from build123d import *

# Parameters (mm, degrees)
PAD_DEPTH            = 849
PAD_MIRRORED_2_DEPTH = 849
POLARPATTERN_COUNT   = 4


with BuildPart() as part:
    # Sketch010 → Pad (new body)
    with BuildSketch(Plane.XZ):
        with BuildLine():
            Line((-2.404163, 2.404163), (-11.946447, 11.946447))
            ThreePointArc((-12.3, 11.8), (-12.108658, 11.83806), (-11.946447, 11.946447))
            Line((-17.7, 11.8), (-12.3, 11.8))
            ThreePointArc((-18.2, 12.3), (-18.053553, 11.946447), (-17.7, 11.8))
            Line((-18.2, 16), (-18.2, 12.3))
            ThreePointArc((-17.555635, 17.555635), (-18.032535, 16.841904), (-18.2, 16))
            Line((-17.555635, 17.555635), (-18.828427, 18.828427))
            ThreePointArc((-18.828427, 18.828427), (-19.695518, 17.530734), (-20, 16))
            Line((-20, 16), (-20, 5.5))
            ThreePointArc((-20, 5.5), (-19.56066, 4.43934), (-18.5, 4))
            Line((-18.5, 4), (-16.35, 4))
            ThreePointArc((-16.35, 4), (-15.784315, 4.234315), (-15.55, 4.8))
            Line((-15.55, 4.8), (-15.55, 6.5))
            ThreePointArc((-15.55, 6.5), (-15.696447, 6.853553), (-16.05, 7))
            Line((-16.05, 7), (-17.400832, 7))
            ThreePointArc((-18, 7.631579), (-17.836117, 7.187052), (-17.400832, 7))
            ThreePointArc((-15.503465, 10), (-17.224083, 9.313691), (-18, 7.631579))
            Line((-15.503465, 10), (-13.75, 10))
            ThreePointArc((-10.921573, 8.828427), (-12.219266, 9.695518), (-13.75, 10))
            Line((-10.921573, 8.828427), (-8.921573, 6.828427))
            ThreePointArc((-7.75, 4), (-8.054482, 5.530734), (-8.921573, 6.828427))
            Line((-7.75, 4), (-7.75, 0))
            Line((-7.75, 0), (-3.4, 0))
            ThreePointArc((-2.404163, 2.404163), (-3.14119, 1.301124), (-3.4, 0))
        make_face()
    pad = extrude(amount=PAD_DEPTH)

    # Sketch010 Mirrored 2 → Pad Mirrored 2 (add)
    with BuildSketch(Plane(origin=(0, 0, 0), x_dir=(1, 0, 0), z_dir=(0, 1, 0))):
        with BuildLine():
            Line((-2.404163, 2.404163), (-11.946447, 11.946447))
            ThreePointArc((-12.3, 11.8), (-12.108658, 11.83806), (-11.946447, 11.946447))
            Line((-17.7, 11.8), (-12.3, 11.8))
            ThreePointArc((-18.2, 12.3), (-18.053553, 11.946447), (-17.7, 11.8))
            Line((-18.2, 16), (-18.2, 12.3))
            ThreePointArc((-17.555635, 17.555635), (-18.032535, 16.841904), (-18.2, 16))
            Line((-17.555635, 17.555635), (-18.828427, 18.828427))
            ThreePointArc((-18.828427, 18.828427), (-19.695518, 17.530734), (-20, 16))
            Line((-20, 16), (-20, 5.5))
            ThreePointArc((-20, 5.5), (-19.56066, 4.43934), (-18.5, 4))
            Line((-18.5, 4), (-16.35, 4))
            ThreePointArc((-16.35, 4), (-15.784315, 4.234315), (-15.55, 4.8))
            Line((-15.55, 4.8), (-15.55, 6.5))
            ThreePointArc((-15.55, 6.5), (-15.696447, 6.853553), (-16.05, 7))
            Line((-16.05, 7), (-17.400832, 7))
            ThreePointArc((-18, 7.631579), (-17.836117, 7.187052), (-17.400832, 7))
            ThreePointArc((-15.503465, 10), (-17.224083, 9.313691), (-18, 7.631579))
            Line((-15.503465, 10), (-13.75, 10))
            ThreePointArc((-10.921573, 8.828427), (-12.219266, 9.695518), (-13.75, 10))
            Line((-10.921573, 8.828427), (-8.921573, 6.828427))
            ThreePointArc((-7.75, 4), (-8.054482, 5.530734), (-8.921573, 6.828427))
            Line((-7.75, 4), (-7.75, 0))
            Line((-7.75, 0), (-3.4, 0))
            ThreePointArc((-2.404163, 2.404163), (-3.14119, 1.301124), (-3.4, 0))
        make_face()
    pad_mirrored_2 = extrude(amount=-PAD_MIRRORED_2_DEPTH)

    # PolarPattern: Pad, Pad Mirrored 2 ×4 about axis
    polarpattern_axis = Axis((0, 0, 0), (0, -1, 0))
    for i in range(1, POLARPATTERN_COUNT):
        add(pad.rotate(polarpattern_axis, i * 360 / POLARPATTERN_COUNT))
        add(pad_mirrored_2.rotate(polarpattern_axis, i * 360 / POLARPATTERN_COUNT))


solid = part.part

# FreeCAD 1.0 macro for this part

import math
import FreeCAD as App
import Part
import Sketcher
from FreeCAD import Vector
Q = App.Units.Quantity

doc = App.newDocument("Part")
body = doc.addObject("PartDesign::Body", "Body")

sketch1 = doc.addObject("Sketcher::SketchObject", "Sketch")
body.addObject(sketch1)
sketch1.AttachmentSupport = (doc.XZ_Plane, [""])
sketch1.MapMode = "FlatFace"
sketch1.addGeometry(Part.LineSegment(Vector(-2.4, 2.4, 0), Vector(-11.95, 11.95, 0)), False)
sketch1.addGeometry(Part.ArcOfCircle(Part.Circle(Vector(-12.3, 12.3, 0), Vector(0, 0, 1), 0.5), math.radians(-90), math.radians(-45)), False)
sketch1.addGeometry(Part.LineSegment(Vector(-12.3, 11.8, 0), Vector(-17.7, 11.8, 0)), False)
sketch1.addGeometry(Part.ArcOfCircle(Part.Circle(Vector(-17.7, 12.3, 0), Vector(0, 0, 1), 0.5), math.radians(-180), math.radians(-90)), False)
sketch1.addGeometry(Part.LineSegment(Vector(-18.2, 12.3, 0), Vector(-18.2, 16, 0)), False)
sketch1.addGeometry(Part.ArcOfCircle(Part.Circle(Vector(-16, 16, 0), Vector(0, 0, 1), 2.2), math.radians(135), math.radians(180)), False)
sketch1.addGeometry(Part.LineSegment(Vector(-17.56, 17.56, 0), Vector(-18.83, 18.83, 0)), False)
sketch1.addGeometry(Part.ArcOfCircle(Part.Circle(Vector(-16, 16, 0), Vector(0, 0, 1), 4), math.radians(135), math.radians(180)), False)
sketch1.addGeometry(Part.LineSegment(Vector(-20, 16, 0), Vector(-20, 5.5, 0)), False)
sketch1.addGeometry(Part.ArcOfCircle(Part.Circle(Vector(-18.5, 5.5, 0), Vector(0, 0, 1), 1.5), math.radians(-180), math.radians(-90)), False)
sketch1.addGeometry(Part.LineSegment(Vector(-18.5, 4, 0), Vector(-16.35, 4, 0)), False)
sketch1.addGeometry(Part.ArcOfCircle(Part.Circle(Vector(-16.35, 4.8, 0), Vector(0, 0, 1), 0.8), math.radians(-90), math.radians(0)), False)
sketch1.addGeometry(Part.LineSegment(Vector(-15.55, 4.8, 0), Vector(-15.55, 6.5, 0)), False)
sketch1.addGeometry(Part.ArcOfCircle(Part.Circle(Vector(-16.05, 6.5, 0), Vector(0, 0, 1), 0.5), math.radians(0), math.radians(90)), False)
sketch1.addGeometry(Part.LineSegment(Vector(-16.05, 7, 0), Vector(-17.4, 7, 0)), False)
sketch1.addGeometry(Part.ArcOfCircle(Part.Circle(Vector(-17.4, 7.6, 0), Vector(0, 0, 1), 0.6), math.radians(177), math.radians(270)), False)
sketch1.addGeometry(Part.ArcOfCircle(Part.Circle(Vector(-15.5, 7.5, 0), Vector(0, 0, 1), 2.5), math.radians(90), math.radians(177)), False)
sketch1.addGeometry(Part.LineSegment(Vector(-15.5, 10, 0), Vector(-13.75, 10, 0)), False)
sketch1.addGeometry(Part.ArcOfCircle(Part.Circle(Vector(-13.75, 6, 0), Vector(0, 0, 1), 4), math.radians(45), math.radians(90)), False)
sketch1.addGeometry(Part.LineSegment(Vector(-10.92, 8.83, 0), Vector(-8.92, 6.83, 0)), False)
sketch1.addGeometry(Part.ArcOfCircle(Part.Circle(Vector(-11.75, 4, 0), Vector(0, 0, 1), 4), math.radians(0), math.radians(45)), False)
sketch1.addGeometry(Part.LineSegment(Vector(-7.75, 4, 0), Vector(-7.75, 0, 0)), False)
sketch1.addGeometry(Part.LineSegment(Vector(-7.75, 0, 0), Vector(-3.4, 0, 0)), False)
sketch1.addGeometry(Part.ArcOfCircle(Part.Circle(Vector(0, 0, 0), Vector(0, 0, 1), 3.4), math.radians(135), math.radians(180)), False)
sketch1.addConstraint(Sketcher.Constraint("Coincident", 0, 2, 1, 2))
sketch1.addConstraint(Sketcher.Constraint("Coincident", 1, 1, 2, 1))
sketch1.addConstraint(Sketcher.Constraint("Coincident", 2, 2, 3, 2))
sketch1.addConstraint(Sketcher.Constraint("Coincident", 3, 1, 4, 1))
sketch1.addConstraint(Sketcher.Constraint("Tangent", 4, 2, 5, 2))
sketch1.addConstraint(Sketcher.Constraint("Coincident", 5, 1, 6, 1))
sketch1.addConstraint(Sketcher.Constraint("Coincident", 6, 2, 7, 1))
sketch1.addConstraint(Sketcher.Constraint("Tangent", 7, 2, 8, 1))
sketch1.addConstraint(Sketcher.Constraint("Tangent", 8, 2, 9, 1))
sketch1.addConstraint(Sketcher.Constraint("Tangent", 9, 2, 10, 1))
sketch1.addConstraint(Sketcher.Constraint("Tangent", 10, 2, 11, 1))
sketch1.addConstraint(Sketcher.Constraint("Tangent", 11, 2, 12, 1))
sketch1.addConstraint(Sketcher.Constraint("Coincident", 12, 2, 13, 1))
sketch1.addConstraint(Sketcher.Constraint("Coincident", 13, 2, 14, 1))
sketch1.addConstraint(Sketcher.Constraint("Coincident", 14, 2, 15, 2))
sketch1.addConstraint(Sketcher.Constraint("Tangent", 15, 1, 16, 2))
sketch1.addConstraint(Sketcher.Constraint("Tangent", 16, 1, 17, 1))
sketch1.addConstraint(Sketcher.Constraint("Tangent", 17, 2, 18, 2))
sketch1.addConstraint(Sketcher.Constraint("Tangent", 18, 1, 19, 1))
sketch1.addConstraint(Sketcher.Constraint("Tangent", 19, 2, 20, 2))
sketch1.addConstraint(Sketcher.Constraint("Tangent", 20, 1, 21, 1))
sketch1.addConstraint(Sketcher.Constraint("Coincident", 21, 2, 22, 1))
sketch1.addConstraint(Sketcher.Constraint("Coincident", 22, 2, 23, 2))
sketch1.addConstraint(Sketcher.Constraint("Coincident", 23, 1, 0, 1))
sketch1.addConstraint(Sketcher.Constraint("Horizontal", 2))
sketch1.addConstraint(Sketcher.Constraint("Vertical", 4))
sketch1.addConstraint(Sketcher.Constraint("Vertical", 8))
sketch1.addConstraint(Sketcher.Constraint("Horizontal", 10))
sketch1.addConstraint(Sketcher.Constraint("Vertical", 12))
sketch1.addConstraint(Sketcher.Constraint("Horizontal", 14))
sketch1.addConstraint(Sketcher.Constraint("Horizontal", 17))
sketch1.addConstraint(Sketcher.Constraint("Vertical", 21))
sketch1.addConstraint(Sketcher.Constraint("Horizontal", 22))
sketch1.addConstraint(Sketcher.Constraint("Coincident", 23, 3, -1, 1))
sketch1.addConstraint(Sketcher.Constraint("Coincident", 7, 3, 5, 3))
sketch1.addConstraint(Sketcher.Constraint("Equal", 3, 13))
sketch1.addConstraint(Sketcher.Constraint("Equal", 7, 18))
sketch1.addConstraint(Sketcher.Constraint("Equal", 18, 20))
sketch1.addConstraint(Sketcher.Constraint("PointOnObject", 21, 2, -1))
sketch1.addConstraint(Sketcher.Constraint("Parallel", 0, 6))
sketch1.addConstraint(Sketcher.Constraint("Parallel", 6, 19))
sketch1.addConstraint(Sketcher.Constraint("Horizontal", 20, 3, 9, 2))
sketch1.addConstraint(Sketcher.Constraint("Horizontal", 13, 3, 12, 2))
sketch1.addConstraint(Sketcher.Constraint("Vertical", 3, 3, 2, 2))
sketch1.addConstraint(Sketcher.Constraint("Vertical", 15, 3, 14, 2))
sketch1.addConstraint(Sketcher.Constraint("Radius", 7, Q("3.999999 mm")))
sketch1.addConstraint(Sketcher.Constraint("Radius", 3, Q("0.500001 mm")))
sketch1.addConstraint(Sketcher.Constraint("Radius", 5, Q("2.199998 mm")))
sketch1.addConstraint(Sketcher.Constraint("Radius", 9, Q("1.500001 mm")))
sketch1.addConstraint(Sketcher.Constraint("Radius", 11, Q("0.800001 mm")))
sketch1.addConstraint(Sketcher.Constraint("Radius", 15, Q("0.600001 mm")))
sketch1.addConstraint(Sketcher.Constraint("Radius", 16, Q("2.499999 mm")))
sketch1.addConstraint(Sketcher.Constraint("DistanceY", 21, 2, 21, 1, Q("4 mm")))
sketch1.addConstraint(Sketcher.Constraint("Angle", 0, Q("135 deg")))
sketch1.addConstraint(Sketcher.Constraint("DistanceX", 2, 2, 2, 1, Q("5.4 mm")))
sketch1.addConstraint(Sketcher.Constraint("DistanceY", 4, 1, 4, 2, Q("3.7 mm")))
sketch1.addConstraint(Sketcher.Constraint("DistanceY", 8, 2, 8, 1, Q("10.5 mm")))
sketch1.addConstraint(Sketcher.Constraint("DistanceY", 12, 1, 12, 2, Q("1.7 mm")))
sketch1.addConstraint(Sketcher.Constraint("DistanceX", 5, 3, -1, 1, Q("16.000002 mm")))
sketch1.addConstraint(Sketcher.Constraint("DistanceY", -1, 1, 18, 3, Q("6.000001 mm")))
sketch1.addConstraint(Sketcher.Constraint("DistanceX", 15, 1, -1, 1, Q("18 mm")))
sketch1.addConstraint(Sketcher.Constraint("DistanceX", 10, 1, 10, 2, Q("2.15 mm")))
sketch1.addConstraint(Sketcher.Constraint("DistanceX", 22, 1, 22, 2, Q("4.35 mm")))
sketch1.addConstraint(Sketcher.Constraint("DistanceY", -1, 1, 3, 3, Q("12.300001 mm")))
sketch1.addConstraint(Sketcher.Constraint("DistanceX", 22, 2, -1, 1, Q("3.4 mm")))
sketch1.addConstraint(Sketcher.Constraint("DistanceX", 3, 3, 1, 3, Q("5.400001 mm")))
sketch1.addConstraint(Sketcher.Constraint("DistanceX", 13, 2, 12, 2, Q("0.5 mm")))
sketch1.addConstraint(Sketcher.Constraint("Radius", 1, Q("0.499992 mm")))
sketch1.addConstraint(Sketcher.Constraint("DistanceX", 1, 3, 0, 2, Q("0.353551 mm")))
sketch1.addConstraint(Sketcher.Constraint("DistanceX", 5, 1, -1, 1, Q("17.555635 mm")))
pad1 = doc.addObject("PartDesign::Pad", "Pad")
body.addObject(pad1)
pad1.Profile = sketch1
pad1.Length = 849

sketch2 = doc.addObject("Sketcher::SketchObject", "Sketch001")
body.addObject(sketch2)
sketch2.AttachmentSupport = (doc.XZ_Plane, [""])
sketch2.MapMode = "FlatFace"
sketch2.addGeometry(Part.LineSegment(Vector(-2.4, -2.4, 0), Vector(-11.95, -11.95, 0)), False)
sketch2.addGeometry(Part.ArcOfCircle(Part.Circle(Vector(-12.3, -12.3, 0), Vector(0, 0, 1), 0.5), math.radians(45), math.radians(90)), False)
sketch2.addGeometry(Part.LineSegment(Vector(-12.3, -11.8, 0), Vector(-17.7, -11.8, 0)), False)
sketch2.addGeometry(Part.ArcOfCircle(Part.Circle(Vector(-17.7, -12.3, 0), Vector(0, 0, 1), 0.5), math.radians(90), math.radians(180)), False)
sketch2.addGeometry(Part.LineSegment(Vector(-18.2, -12.3, 0), Vector(-18.2, -16, 0)), False)
sketch2.addGeometry(Part.ArcOfCircle(Part.Circle(Vector(-16, -16, 0), Vector(0, 0, 1), 2.2), math.radians(180), math.radians(225)), False)
sketch2.addGeometry(Part.LineSegment(Vector(-17.56, -17.56, 0), Vector(-18.83, -18.83, 0)), False)
sketch2.addGeometry(Part.ArcOfCircle(Part.Circle(Vector(-16, -16, 0), Vector(0, 0, 1), 4), math.radians(180), math.radians(225)), False)
sketch2.addGeometry(Part.LineSegment(Vector(-20, -16, 0), Vector(-20, -5.5, 0)), False)
sketch2.addGeometry(Part.ArcOfCircle(Part.Circle(Vector(-18.5, -5.5, 0), Vector(0, 0, 1), 1.5), math.radians(90), math.radians(180)), False)
sketch2.addGeometry(Part.LineSegment(Vector(-18.5, -4, 0), Vector(-16.35, -4, 0)), False)
sketch2.addGeometry(Part.ArcOfCircle(Part.Circle(Vector(-16.35, -4.8, 0), Vector(0, 0, 1), 0.8), math.radians(0), math.radians(90)), False)
sketch2.addGeometry(Part.LineSegment(Vector(-15.55, -4.8, 0), Vector(-15.55, -6.5, 0)), False)
sketch2.addGeometry(Part.ArcOfCircle(Part.Circle(Vector(-16.05, -6.5, 0), Vector(0, 0, 1), 0.5), math.radians(-90), math.radians(0)), False)
sketch2.addGeometry(Part.LineSegment(Vector(-16.05, -7, 0), Vector(-17.4, -7, 0)), False)
sketch2.addGeometry(Part.ArcOfCircle(Part.Circle(Vector(-17.4, -7.6, 0), Vector(0, 0, 1), 0.6), math.radians(90), math.radians(183)), False)
sketch2.addGeometry(Part.ArcOfCircle(Part.Circle(Vector(-15.5, -7.5, 0), Vector(0, 0, 1), 2.5), math.radians(-177), math.radians(-90)), False)
sketch2.addGeometry(Part.LineSegment(Vector(-15.5, -10, 0), Vector(-13.75, -10, 0)), False)
sketch2.addGeometry(Part.ArcOfCircle(Part.Circle(Vector(-13.75, -6, 0), Vector(0, 0, 1), 4), math.radians(-90), math.radians(-45)), False)
sketch2.addGeometry(Part.LineSegment(Vector(-10.92, -8.83, 0), Vector(-8.92, -6.83, 0)), False)
sketch2.addGeometry(Part.ArcOfCircle(Part.Circle(Vector(-11.75, -4, 0), Vector(0, 0, 1), 4), math.radians(-45), math.radians(0)), False)
sketch2.addGeometry(Part.LineSegment(Vector(-7.75, -4, 0), Vector(-7.75, 0, 0)), False)
sketch2.addGeometry(Part.LineSegment(Vector(-7.75, 0, 0), Vector(-3.4, 0, 0)), False)
sketch2.addGeometry(Part.ArcOfCircle(Part.Circle(Vector(0, 0, 0), Vector(0, 0, 1), 3.4), math.radians(-180), math.radians(-135)), False)
sketch2.addConstraint(Sketcher.Constraint("Coincident", 0, 2, 1, 1))
sketch2.addConstraint(Sketcher.Constraint("Coincident", 1, 2, 2, 1))
sketch2.addConstraint(Sketcher.Constraint("Coincident", 2, 2, 3, 1))
sketch2.addConstraint(Sketcher.Constraint("Coincident", 3, 2, 4, 1))
sketch2.addConstraint(Sketcher.Constraint("Tangent", 4, 2, 5, 1))
sketch2.addConstraint(Sketcher.Constraint("Coincident", 5, 2, 6, 1))
sketch2.addConstraint(Sketcher.Constraint("Coincident", 6, 2, 7, 2))
sketch2.addConstraint(Sketcher.Constraint("Tangent", 7, 1, 8, 1))
sketch2.addConstraint(Sketcher.Constraint("Tangent", 8, 2, 9, 2))
sketch2.addConstraint(Sketcher.Constraint("Tangent", 9, 1, 10, 1))
sketch2.addConstraint(Sketcher.Constraint("Tangent", 10, 2, 11, 2))
sketch2.addConstraint(Sketcher.Constraint("Tangent", 11, 1, 12, 1))
sketch2.addConstraint(Sketcher.Constraint("Coincident", 12, 2, 13, 2))
sketch2.addConstraint(Sketcher.Constraint("Coincident", 13, 1, 14, 1))
sketch2.addConstraint(Sketcher.Constraint("Coincident", 14, 2, 15, 1))
sketch2.addConstraint(Sketcher.Constraint("Tangent", 15, 2, 16, 1))
sketch2.addConstraint(Sketcher.Constraint("Tangent", 16, 2, 17, 1))
sketch2.addConstraint(Sketcher.Constraint("Tangent", 17, 2, 18, 1))
sketch2.addConstraint(Sketcher.Constraint("Tangent", 18, 2, 19, 1))
sketch2.addConstraint(Sketcher.Constraint("Tangent", 19, 2, 20, 1))
sketch2.addConstraint(Sketcher.Constraint("Tangent", 20, 2, 21, 1))
sketch2.addConstraint(Sketcher.Constraint("Coincident", 21, 2, 22, 1))
sketch2.addConstraint(Sketcher.Constraint("Coincident", 22, 2, 23, 1))
sketch2.addConstraint(Sketcher.Constraint("Coincident", 23, 2, 0, 1))
sketch2.addConstraint(Sketcher.Constraint("Horizontal", 2))
sketch2.addConstraint(Sketcher.Constraint("Vertical", 4))
sketch2.addConstraint(Sketcher.Constraint("Vertical", 8))
sketch2.addConstraint(Sketcher.Constraint("Horizontal", 10))
sketch2.addConstraint(Sketcher.Constraint("Vertical", 12))
sketch2.addConstraint(Sketcher.Constraint("Horizontal", 14))
sketch2.addConstraint(Sketcher.Constraint("Horizontal", 17))
sketch2.addConstraint(Sketcher.Constraint("Vertical", 21))
sketch2.addConstraint(Sketcher.Constraint("Horizontal", 22))
sketch2.addConstraint(Sketcher.Constraint("Coincident", 23, 3, -1, 1))
sketch2.addConstraint(Sketcher.Constraint("Coincident", 7, 3, 5, 3))
sketch2.addConstraint(Sketcher.Constraint("Equal", 3, 13))
sketch2.addConstraint(Sketcher.Constraint("Equal", 7, 18))
sketch2.addConstraint(Sketcher.Constraint("Equal", 18, 20))
sketch2.addConstraint(Sketcher.Constraint("PointOnObject", 21, 2, -1))
sketch2.addConstraint(Sketcher.Constraint("Parallel", 0, 6))
sketch2.addConstraint(Sketcher.Constraint("Parallel", 6, 19))
sketch2.addConstraint(Sketcher.Constraint("Horizontal", 20, 3, 9, 1))
sketch2.addConstraint(Sketcher.Constraint("Horizontal", 13, 3, 12, 2))
sketch2.addConstraint(Sketcher.Constraint("Vertical", 3, 3, 2, 2))
sketch2.addConstraint(Sketcher.Constraint("Vertical", 15, 3, 14, 2))
sketch2.addConstraint(Sketcher.Constraint("Radius", 7, Q("3.999999 mm")))
sketch2.addConstraint(Sketcher.Constraint("Radius", 3, Q("0.500001 mm")))
sketch2.addConstraint(Sketcher.Constraint("Radius", 5, Q("2.199998 mm")))
sketch2.addConstraint(Sketcher.Constraint("Radius", 9, Q("1.500001 mm")))
sketch2.addConstraint(Sketcher.Constraint("Radius", 11, Q("0.800001 mm")))
sketch2.addConstraint(Sketcher.Constraint("Radius", 15, Q("0.600001 mm")))
sketch2.addConstraint(Sketcher.Constraint("Radius", 16, Q("2.499999 mm")))
sketch2.addConstraint(Sketcher.Constraint("DistanceY", 21, 1, 21, 2, Q("4 mm")))
sketch2.addConstraint(Sketcher.Constraint("Angle", 0, Q("-135 deg")))
sketch2.addConstraint(Sketcher.Constraint("DistanceX", 2, 2, 2, 1, Q("5.4 mm")))
sketch2.addConstraint(Sketcher.Constraint("DistanceY", 4, 2, 4, 1, Q("3.7 mm")))
sketch2.addConstraint(Sketcher.Constraint("DistanceY", 8, 1, 8, 2, Q("10.5 mm")))
sketch2.addConstraint(Sketcher.Constraint("DistanceY", 12, 2, 12, 1, Q("1.7 mm")))
sketch2.addConstraint(Sketcher.Constraint("DistanceX", 5, 3, -1, 1, Q("16.000002 mm")))
sketch2.addConstraint(Sketcher.Constraint("DistanceY", 18, 3, -1, 1, Q("6.000001 mm")))
sketch2.addConstraint(Sketcher.Constraint("DistanceX", 15, 2, -1, 1, Q("18 mm")))
sketch2.addConstraint(Sketcher.Constraint("DistanceX", 10, 1, 10, 2, Q("2.15 mm")))
sketch2.addConstraint(Sketcher.Constraint("DistanceX", 22, 1, 22, 2, Q("4.35 mm")))
sketch2.addConstraint(Sketcher.Constraint("DistanceY", 3, 3, -1, 1, Q("12.300001 mm")))
sketch2.addConstraint(Sketcher.Constraint("DistanceX", 22, 2, -1, 1, Q("3.4 mm")))
sketch2.addConstraint(Sketcher.Constraint("DistanceX", 3, 3, 1, 3, Q("5.400001 mm")))
sketch2.addConstraint(Sketcher.Constraint("DistanceX", 13, 1, 12, 2, Q("0.5 mm")))
sketch2.addConstraint(Sketcher.Constraint("Radius", 1, Q("0.499992 mm")))
sketch2.addConstraint(Sketcher.Constraint("DistanceX", 1, 3, 0, 2, Q("0.353551 mm")))
sketch2.addConstraint(Sketcher.Constraint("DistanceX", 5, 2, -1, 1, Q("17.555635 mm")))
pad2 = doc.addObject("PartDesign::Pad", "Pad001")
body.addObject(pad2)
pad2.Profile = sketch2
pad2.Length = 849
doc.recompute()

polarpattern = doc.addObject("PartDesign::PolarPattern", "PolarPattern")
body.addObject(polarpattern)
polarpattern.Originals = [pad1, pad2]
polarpattern.Axis = (doc.Y_Axis, [""])
polarpattern.Angle = 360
polarpattern.Occurrences = 4
body.Tip = polarpattern

doc.recompute()
